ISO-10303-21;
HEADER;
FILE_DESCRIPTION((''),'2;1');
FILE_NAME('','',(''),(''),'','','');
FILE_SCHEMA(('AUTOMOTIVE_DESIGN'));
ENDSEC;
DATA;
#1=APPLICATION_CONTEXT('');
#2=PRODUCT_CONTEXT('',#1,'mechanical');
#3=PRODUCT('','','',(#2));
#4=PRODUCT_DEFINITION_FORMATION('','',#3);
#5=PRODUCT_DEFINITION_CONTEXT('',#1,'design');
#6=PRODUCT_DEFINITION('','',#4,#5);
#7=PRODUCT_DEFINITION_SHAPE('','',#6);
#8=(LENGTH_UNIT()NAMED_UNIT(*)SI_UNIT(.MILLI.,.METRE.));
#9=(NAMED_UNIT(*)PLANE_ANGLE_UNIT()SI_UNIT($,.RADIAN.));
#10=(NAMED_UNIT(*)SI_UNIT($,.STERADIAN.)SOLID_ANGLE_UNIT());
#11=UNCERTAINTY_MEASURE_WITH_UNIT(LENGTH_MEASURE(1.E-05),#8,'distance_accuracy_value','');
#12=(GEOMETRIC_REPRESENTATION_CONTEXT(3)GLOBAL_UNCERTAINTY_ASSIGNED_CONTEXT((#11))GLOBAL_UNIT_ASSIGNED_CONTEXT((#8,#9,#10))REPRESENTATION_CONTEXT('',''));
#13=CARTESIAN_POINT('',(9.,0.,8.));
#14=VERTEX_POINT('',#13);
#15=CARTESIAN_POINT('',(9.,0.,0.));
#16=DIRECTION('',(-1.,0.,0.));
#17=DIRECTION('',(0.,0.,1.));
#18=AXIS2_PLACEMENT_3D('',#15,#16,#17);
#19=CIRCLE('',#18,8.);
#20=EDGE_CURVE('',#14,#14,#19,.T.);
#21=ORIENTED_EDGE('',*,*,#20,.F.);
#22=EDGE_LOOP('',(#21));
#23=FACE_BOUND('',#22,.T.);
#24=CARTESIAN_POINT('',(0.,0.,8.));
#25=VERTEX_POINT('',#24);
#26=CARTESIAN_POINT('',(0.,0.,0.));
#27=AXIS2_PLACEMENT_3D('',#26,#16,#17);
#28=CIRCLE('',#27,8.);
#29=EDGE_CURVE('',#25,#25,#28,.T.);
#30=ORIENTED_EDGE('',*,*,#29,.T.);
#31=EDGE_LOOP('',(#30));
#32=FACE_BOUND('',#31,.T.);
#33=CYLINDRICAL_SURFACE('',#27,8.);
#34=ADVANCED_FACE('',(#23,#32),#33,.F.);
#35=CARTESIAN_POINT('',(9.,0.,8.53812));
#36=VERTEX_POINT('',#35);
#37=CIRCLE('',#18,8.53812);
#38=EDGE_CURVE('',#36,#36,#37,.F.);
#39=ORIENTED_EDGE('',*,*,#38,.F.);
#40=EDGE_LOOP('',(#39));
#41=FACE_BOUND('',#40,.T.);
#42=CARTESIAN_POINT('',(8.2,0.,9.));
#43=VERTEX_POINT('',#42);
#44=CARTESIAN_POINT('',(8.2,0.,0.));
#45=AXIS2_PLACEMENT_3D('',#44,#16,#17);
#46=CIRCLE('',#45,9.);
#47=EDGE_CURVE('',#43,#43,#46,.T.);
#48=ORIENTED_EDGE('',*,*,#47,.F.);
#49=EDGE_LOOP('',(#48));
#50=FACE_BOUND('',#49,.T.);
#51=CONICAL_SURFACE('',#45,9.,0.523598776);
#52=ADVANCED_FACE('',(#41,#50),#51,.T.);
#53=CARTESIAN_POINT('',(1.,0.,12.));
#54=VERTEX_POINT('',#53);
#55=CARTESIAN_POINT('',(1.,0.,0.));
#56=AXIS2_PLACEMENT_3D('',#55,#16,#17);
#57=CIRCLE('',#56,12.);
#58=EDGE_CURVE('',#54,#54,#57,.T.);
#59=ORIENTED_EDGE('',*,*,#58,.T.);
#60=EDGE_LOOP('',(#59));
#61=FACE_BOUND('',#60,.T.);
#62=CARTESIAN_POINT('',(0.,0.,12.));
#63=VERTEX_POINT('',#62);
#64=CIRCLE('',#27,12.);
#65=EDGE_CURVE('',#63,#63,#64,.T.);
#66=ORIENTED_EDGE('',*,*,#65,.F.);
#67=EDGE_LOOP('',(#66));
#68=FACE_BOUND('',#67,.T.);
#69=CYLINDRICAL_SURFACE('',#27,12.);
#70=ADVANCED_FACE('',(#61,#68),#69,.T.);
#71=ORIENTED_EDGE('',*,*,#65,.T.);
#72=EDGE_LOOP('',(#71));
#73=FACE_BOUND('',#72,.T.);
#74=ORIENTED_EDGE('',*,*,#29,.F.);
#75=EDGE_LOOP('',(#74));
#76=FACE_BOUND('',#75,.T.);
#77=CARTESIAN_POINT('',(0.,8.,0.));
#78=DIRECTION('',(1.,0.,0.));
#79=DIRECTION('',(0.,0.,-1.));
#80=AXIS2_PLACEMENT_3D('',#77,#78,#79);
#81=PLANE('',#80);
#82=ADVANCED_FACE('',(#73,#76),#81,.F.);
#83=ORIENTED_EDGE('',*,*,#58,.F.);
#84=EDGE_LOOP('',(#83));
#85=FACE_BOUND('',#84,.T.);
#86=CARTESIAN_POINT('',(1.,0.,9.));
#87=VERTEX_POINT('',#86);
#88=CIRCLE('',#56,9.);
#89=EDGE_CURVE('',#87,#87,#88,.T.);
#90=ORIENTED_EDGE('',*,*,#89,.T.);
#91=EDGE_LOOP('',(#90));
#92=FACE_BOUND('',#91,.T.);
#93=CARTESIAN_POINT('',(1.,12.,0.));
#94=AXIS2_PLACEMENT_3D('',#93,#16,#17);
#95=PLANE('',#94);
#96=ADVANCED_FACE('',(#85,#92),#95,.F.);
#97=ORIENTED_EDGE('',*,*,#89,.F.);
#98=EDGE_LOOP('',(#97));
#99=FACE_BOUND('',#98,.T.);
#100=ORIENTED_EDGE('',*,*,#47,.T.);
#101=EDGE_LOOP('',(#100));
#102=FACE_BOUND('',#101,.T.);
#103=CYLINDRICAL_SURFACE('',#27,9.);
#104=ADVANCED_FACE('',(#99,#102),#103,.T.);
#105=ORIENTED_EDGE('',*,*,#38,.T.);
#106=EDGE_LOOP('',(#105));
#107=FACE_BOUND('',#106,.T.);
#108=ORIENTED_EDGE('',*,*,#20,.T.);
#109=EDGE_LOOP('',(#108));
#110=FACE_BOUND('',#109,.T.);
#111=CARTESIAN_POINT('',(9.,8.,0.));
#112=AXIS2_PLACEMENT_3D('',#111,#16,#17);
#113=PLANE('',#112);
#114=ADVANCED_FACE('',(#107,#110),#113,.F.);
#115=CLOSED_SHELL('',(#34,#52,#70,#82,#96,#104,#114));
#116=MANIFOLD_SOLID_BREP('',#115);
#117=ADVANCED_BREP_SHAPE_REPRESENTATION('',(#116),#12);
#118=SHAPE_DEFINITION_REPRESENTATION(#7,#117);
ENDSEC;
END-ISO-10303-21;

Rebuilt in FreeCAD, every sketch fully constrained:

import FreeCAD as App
import Part
import Sketcher
Q = App.Units.Quantity


def edges_at(feature, points):
    """Names of the edges that pass closest to the given points."""
    edges = feature.Shape.Edges
    near = lambda p: min(range(len(edges)), key=lambda i: edges[i].distToShape(Part.Vertex(*p))[0])
    return sorted({f"Edge{near(p) + 1}" for p in points})


def add_polygon(sketch, points):
    """Adds a closed chain of lines whose ends are joined by coincident constraints."""
    first, n = sketch.GeometryCount, len(points)
    for a, b in zip(points, points[1:] + points[:1]):
        sketch.addGeometry(Part.LineSegment(App.Vector(*a, 0), App.Vector(*b, 0)), False)
    for i in range(n):
        sketch.addConstraint(Sketcher.Constraint("Coincident", first + i, 2, first + (i + 1) % n, 1))

doc = App.newDocument("Part")
params = doc.addObject("Spreadsheet::Sheet", "Params")
for row, (alias, value) in enumerate([
    ("sketch1_width", "9 mm"),
    ("sketch1_width2", "8 mm"),
    ("sketch1_height", "3 mm"),
    ("revolution_angle", "360 deg"),
    ("chamfer_size", "0.8 mm"),
    ("chamfer_size2", "0.46188 mm"),
], start=1):
    params.set(f"A{row}", alias)
    params.set(f"B{row}", "=" + value)
    params.setAlias(f"B{row}", alias)

body = doc.addObject("PartDesign::Body", "Body")

# Sketch on XY plane
sketch1 = body.newObject("Sketcher::SketchObject", "Sketch")
sketch1.AttachmentSupport = (doc.getObject("XY_Plane"), [""])
sketch1.MapMode = "FlatFace"
add_polygon(sketch1, [(0, 8), (9, 8), (9, 9), (1, 9), (1, 12), (0, 12)])  # lines 0-5
sketch1.addConstraint(Sketcher.Constraint("Horizontal", 0))
sketch1.addConstraint(Sketcher.Constraint("Vertical", 1))
sketch1.addConstraint(Sketcher.Constraint("Horizontal", 2))
sketch1.addConstraint(Sketcher.Constraint("Vertical", 3))
sketch1.addConstraint(Sketcher.Constraint("Horizontal", 4))
sketch1.addConstraint(Sketcher.Constraint("Vertical", 5))
sketch1.addConstraint(Sketcher.Constraint("PointOnObject", 4, 2, -2))
sketch1.addConstraint(Sketcher.Constraint("Equal", 4, 1))
sketch1.addConstraint(Sketcher.Constraint("DistanceX", 0, 1, 0, 2, Q("9 mm")))
sketch1.addConstraint(Sketcher.Constraint("DistanceX", 2, 2, 2, 1, Q("8 mm")))
sketch1.addConstraint(Sketcher.Constraint("DistanceY", 3, 1, 3, 2, Q("3 mm")))
sketch1.addConstraint(Sketcher.Constraint("DistanceY", -1, 1, 0, 2, Q("8 mm")))
sketch1.setExpression("Constraints[14]", "Params.sketch1_width")
sketch1.setExpression("Constraints[15]", "Params.sketch1_width2")
sketch1.setExpression("Constraints[16]", "Params.sketch1_height")
revolution = body.newObject("PartDesign::Revolution", "Revolution")
revolution.Profile = sketch1
revolution.ReferenceAxis = (sketch1, ["H_Axis"])
revolution.setExpression("Angle", "Params.revolution_angle")
doc.recompute()

chamfer = body.newObject("PartDesign::Chamfer", "Chamfer")
chamfer.Base = (revolution, edges_at(revolution, [(9, -9, 0)]))
chamfer.ChamferType = "Two distances"
chamfer.setExpression("Size", "Params.chamfer_size")
chamfer.setExpression("Size2", "Params.chamfer_size2")
chamfer.FlipDirection = True

doc.recompute()
